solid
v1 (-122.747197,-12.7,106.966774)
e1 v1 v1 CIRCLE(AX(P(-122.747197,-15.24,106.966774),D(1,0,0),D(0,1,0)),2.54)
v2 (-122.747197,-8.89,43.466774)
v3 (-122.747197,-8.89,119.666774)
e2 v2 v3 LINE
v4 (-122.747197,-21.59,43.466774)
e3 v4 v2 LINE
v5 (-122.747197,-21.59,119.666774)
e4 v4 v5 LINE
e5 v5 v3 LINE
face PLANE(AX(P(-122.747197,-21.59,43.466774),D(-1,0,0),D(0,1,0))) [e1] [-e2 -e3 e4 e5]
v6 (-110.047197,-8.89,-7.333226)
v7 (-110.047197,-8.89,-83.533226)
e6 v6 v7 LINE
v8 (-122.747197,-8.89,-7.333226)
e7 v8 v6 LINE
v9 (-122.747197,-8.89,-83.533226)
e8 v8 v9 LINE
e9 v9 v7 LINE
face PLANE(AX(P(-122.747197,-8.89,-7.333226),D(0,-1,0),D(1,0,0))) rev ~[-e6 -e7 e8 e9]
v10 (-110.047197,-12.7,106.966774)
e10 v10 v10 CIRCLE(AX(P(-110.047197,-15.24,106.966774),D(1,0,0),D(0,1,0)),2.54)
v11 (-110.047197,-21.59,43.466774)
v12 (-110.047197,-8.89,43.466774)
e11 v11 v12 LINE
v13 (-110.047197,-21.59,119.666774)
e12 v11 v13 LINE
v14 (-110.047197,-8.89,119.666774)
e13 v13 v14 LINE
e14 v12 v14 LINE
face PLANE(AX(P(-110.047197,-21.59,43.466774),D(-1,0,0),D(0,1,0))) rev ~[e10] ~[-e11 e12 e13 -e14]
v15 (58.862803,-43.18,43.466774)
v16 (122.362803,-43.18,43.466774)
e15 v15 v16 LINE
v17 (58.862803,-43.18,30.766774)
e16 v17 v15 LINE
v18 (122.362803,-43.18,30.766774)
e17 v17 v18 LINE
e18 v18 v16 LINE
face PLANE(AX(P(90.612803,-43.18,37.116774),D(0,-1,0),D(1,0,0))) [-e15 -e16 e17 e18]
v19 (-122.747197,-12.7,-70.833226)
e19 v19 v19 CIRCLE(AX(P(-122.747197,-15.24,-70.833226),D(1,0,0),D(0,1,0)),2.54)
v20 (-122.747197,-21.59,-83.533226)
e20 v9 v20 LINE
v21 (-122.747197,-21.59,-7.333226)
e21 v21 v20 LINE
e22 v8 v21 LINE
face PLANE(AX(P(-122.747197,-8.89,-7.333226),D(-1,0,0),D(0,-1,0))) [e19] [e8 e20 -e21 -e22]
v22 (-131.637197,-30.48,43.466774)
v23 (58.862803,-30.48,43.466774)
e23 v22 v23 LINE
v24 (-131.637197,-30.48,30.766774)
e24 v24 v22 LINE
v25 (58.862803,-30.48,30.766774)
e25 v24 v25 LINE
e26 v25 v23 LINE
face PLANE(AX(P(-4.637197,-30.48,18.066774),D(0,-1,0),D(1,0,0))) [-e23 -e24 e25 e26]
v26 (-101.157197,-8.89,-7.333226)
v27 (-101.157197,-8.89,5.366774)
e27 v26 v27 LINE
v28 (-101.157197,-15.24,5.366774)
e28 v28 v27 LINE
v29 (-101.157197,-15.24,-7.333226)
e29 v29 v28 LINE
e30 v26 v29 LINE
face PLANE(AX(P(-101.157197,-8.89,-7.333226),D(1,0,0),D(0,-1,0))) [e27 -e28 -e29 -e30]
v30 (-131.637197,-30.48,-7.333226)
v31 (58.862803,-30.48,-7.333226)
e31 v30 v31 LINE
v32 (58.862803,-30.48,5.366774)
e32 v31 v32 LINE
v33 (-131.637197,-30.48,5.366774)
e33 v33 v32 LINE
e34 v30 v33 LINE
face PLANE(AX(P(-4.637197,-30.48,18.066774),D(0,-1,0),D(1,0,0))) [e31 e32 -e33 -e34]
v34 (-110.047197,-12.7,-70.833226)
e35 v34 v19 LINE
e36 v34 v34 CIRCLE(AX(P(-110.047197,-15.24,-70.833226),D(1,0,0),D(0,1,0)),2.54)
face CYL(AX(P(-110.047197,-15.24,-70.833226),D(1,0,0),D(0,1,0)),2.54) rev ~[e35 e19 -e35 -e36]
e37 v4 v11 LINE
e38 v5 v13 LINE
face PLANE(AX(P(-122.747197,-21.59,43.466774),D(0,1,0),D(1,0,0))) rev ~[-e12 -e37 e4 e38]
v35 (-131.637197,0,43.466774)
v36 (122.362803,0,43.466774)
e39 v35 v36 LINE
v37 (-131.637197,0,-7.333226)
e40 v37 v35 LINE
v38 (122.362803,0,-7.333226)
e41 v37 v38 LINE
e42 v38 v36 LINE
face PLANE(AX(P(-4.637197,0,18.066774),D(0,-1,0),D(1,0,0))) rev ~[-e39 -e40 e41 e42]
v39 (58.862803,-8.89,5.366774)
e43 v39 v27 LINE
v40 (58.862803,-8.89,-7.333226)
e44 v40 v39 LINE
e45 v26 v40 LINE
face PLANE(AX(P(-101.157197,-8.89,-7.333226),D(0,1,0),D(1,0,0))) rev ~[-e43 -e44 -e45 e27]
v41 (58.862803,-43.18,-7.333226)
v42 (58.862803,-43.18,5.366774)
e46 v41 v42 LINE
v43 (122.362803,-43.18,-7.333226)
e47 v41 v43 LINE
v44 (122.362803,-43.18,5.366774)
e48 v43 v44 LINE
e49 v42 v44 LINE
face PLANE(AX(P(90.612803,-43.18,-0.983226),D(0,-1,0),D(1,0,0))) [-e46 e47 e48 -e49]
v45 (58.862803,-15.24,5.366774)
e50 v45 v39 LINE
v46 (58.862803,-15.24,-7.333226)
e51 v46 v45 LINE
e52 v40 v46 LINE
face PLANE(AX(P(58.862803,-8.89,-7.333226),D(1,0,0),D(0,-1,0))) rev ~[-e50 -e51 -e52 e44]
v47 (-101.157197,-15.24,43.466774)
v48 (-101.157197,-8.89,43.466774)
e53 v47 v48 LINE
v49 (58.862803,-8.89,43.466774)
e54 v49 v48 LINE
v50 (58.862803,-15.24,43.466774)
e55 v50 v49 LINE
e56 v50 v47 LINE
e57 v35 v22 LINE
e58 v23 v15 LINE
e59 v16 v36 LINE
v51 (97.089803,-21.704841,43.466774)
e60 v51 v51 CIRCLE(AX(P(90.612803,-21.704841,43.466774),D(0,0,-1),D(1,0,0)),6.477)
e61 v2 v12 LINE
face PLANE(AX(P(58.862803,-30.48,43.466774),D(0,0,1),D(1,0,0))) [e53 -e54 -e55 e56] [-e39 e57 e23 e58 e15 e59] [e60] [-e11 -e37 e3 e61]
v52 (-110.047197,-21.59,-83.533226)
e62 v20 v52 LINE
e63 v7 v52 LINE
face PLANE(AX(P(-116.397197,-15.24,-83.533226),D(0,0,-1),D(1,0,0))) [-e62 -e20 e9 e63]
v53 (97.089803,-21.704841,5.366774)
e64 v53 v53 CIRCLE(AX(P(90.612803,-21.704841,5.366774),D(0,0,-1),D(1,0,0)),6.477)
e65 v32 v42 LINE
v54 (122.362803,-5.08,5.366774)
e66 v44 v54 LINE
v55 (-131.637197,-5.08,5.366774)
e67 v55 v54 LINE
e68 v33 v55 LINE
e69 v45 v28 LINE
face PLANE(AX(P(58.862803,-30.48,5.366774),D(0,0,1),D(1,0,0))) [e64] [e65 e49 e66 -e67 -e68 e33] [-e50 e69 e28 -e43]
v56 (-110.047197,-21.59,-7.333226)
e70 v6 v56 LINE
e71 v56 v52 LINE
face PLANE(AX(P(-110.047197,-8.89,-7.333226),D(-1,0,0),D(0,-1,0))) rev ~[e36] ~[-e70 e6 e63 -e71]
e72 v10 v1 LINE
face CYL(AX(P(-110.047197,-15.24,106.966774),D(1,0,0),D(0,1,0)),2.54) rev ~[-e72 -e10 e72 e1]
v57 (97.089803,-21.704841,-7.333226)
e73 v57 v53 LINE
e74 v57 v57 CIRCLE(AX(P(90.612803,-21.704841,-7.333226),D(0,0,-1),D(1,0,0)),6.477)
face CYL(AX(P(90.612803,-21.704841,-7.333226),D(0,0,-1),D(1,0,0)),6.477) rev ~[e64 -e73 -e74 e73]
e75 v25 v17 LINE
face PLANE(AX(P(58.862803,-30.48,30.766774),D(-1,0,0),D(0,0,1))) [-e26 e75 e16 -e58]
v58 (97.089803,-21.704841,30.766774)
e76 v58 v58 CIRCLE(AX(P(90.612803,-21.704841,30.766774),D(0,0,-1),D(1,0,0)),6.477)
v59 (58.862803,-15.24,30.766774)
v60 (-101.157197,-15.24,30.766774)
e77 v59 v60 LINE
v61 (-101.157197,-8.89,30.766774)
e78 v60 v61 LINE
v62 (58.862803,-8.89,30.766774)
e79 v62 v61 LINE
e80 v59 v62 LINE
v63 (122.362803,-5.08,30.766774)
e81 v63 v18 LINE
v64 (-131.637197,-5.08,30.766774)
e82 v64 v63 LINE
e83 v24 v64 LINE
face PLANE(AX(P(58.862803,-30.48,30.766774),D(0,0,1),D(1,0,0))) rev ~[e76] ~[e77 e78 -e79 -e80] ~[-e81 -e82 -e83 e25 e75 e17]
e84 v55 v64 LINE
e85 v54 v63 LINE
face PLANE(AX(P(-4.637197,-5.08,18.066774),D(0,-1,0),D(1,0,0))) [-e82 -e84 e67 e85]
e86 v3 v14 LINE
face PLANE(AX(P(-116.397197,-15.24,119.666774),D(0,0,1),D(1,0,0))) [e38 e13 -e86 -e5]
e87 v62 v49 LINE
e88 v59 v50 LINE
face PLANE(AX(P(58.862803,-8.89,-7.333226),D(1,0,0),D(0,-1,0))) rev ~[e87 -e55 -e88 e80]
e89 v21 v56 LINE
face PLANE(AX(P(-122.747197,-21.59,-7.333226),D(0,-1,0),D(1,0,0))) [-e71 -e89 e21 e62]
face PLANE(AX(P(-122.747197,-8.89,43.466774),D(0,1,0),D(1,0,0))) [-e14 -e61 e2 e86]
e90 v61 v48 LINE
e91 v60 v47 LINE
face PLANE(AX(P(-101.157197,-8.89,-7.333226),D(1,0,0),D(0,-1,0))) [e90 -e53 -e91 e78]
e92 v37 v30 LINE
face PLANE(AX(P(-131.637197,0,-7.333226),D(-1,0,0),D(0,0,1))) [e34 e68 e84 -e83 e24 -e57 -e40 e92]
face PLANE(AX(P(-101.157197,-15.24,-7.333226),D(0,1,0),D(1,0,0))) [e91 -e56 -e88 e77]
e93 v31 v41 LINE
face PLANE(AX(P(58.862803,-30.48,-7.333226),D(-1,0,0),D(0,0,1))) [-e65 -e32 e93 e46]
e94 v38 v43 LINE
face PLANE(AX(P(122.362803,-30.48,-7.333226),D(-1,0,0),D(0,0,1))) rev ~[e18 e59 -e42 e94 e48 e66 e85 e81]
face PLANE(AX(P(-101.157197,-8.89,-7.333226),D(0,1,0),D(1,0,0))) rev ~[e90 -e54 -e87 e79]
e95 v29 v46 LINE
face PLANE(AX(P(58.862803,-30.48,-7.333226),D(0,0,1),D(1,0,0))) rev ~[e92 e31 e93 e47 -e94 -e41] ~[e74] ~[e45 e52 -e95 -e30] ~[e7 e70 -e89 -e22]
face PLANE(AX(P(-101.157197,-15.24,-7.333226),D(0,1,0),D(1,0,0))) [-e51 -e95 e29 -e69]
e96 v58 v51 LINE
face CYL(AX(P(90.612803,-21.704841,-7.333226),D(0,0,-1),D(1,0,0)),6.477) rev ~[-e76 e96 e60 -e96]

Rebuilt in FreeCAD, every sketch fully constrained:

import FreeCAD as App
import Part
import Sketcher
from FreeCAD import Vector
Q = App.Units.Quantity


def add_polygon(sketch, points):
    """Adds a closed chain of lines whose ends are joined by coincident constraints."""
    first, n = sketch.GeometryCount, len(points)
    for a, b in zip(points, points[1:] + points[:1]):
        sketch.addGeometry(Part.LineSegment(App.Vector(*a, 0), App.Vector(*b, 0)), False)
    for i in range(n):
        sketch.addConstraint(Sketcher.Constraint("Coincident", first + i, 2, first + (i + 1) % n, 1))

doc = App.newDocument("Part")
body = doc.addObject("PartDesign::Body", "Body")

sketch1 = body.newObject("Sketcher::SketchObject", "Sketch")
sketch1.AttachmentSupport = (doc.getObject("XZ_Plane"), [""])
sketch1.MapMode = "FlatFace"
add_polygon(sketch1, [(-131.637197, 43.466774), (-131.637197, -7.333226), (122.362803, -7.333226), (122.362803, 43.466774)])
sketch1.addConstraint([
    Sketcher.Constraint("Vertical", 0),
    Sketcher.Constraint("Horizontal", 1),
    Sketcher.Constraint("Vertical", 2),
    Sketcher.Constraint("Horizontal", 3),
    Sketcher.Constraint("DistanceX", 1, 1, 1, 2, Q("10 in")),
    Sketcher.Constraint("DistanceY", 0, 2, 0, 1, Q("2 in")),
    Sketcher.Constraint("DistanceX", 0, 2, -1, 1, Q("131.637197 mm")),
    Sketcher.Constraint("DistanceY", 0, 2, -1, 1, Q("7.333226 mm")),
])
pad1 = body.newObject("PartDesign::Pad", "Pad")
pad1.Profile = sketch1
pad1.Length = Q("1.2 in")

sketch2 = body.newObject("Sketcher::SketchObject", "Sketch001")
sketch2.AttachmentSupport = (doc.getObject("XZ_Plane"), [""])
sketch2.MapMode = "FlatFace"
sketch2.AttachmentOffset = App.Placement(Vector(0, 0, 1.2 * 25.4), App.Rotation())
add_polygon(sketch2, [(-131.637197, 30.766774), (-131.637197, 5.366774), (122.362803, 5.366774), (122.362803, 30.766774)])
sketch2.addConstraint([
    Sketcher.Constraint("Vertical", 0),
    Sketcher.Constraint("Horizontal", 1),
    Sketcher.Constraint("Vertical", 2),
    Sketcher.Constraint("Horizontal", 3),
    Sketcher.Constraint("DistanceX", 1, 1, 1, 2, Q("10 in")),
    Sketcher.Constraint("DistanceY", 0, 2, 0, 1, Q("1 in")),
    Sketcher.Constraint("DistanceX", 0, 2, -1, 1, Q("131.637197 mm")),
    Sketcher.Constraint("DistanceY", -1, 1, 0, 2, Q("5.366774 mm")),
])
pocket1 = body.newObject("PartDesign::Pocket", "Pocket")
pocket1.Profile = sketch2
pocket1.Length = Q("1 in")

sketch3 = body.newObject("Sketcher::SketchObject", "Sketch002")
sketch3.AttachmentSupport = (doc.getObject("XY_Plane"), [""])
sketch3.MapMode = "FlatFace"
sketch3.AttachmentOffset = App.Placement(Vector(0, 0, -7.333226), App.Rotation())
add_polygon(sketch3, [(-122.747197, -21.59), (-122.747197, -8.89), (-110.047197, -8.89), (-110.047197, -21.59)])
sketch3.addConstraint([
    Sketcher.Constraint("Vertical", 0),
    Sketcher.Constraint("Horizontal", 1),
    Sketcher.Constraint("Vertical", 2),
    Sketcher.Constraint("Horizontal", 3),
    Sketcher.Constraint("Equal", 3, 0),
    Sketcher.Constraint("DistanceX", 1, 1, 1, 2, Q("0.5 in")),
    Sketcher.Constraint("DistanceY", 0, 2, -1, 1, Q("0.35 in")),
    Sketcher.Constraint("DistanceX", 0, 2, -1, 1, Q("122.747197 mm")),
])
pad2 = body.newObject("PartDesign::Pad", "Pad001")
pad2.Profile = sketch3
pad2.Length = Q("3 in")
pad2.Reversed = True

sketch4 = body.newObject("Sketcher::SketchObject", "Sketch003")
sketch4.AttachmentSupport = (doc.getObject("XY_Plane"), [""])
sketch4.MapMode = "FlatFace"
sketch4.AttachmentOffset = App.Placement(Vector(0, 0, 43.466774), App.Rotation())
add_polygon(sketch4, [(-122.747197, -8.89), (-122.747197, -21.59), (-110.047197, -21.59), (-110.047197, -8.89)])
sketch4.addConstraint([
    Sketcher.Constraint("Vertical", 0),
    Sketcher.Constraint("Horizontal", 1),
    Sketcher.Constraint("Vertical", 2),
    Sketcher.Constraint("Horizontal", 3),
    Sketcher.Constraint("Equal", 3, 0),
    Sketcher.Constraint("DistanceX", 1, 1, 1, 2, Q("0.5 in")),
    Sketcher.Constraint("DistanceY", 0, 2, -1, 1, Q("0.85 in")),
    Sketcher.Constraint("DistanceX", 0, 2, -1, 1, Q("122.747197 mm")),
])
pad3 = body.newObject("PartDesign::Pad", "Pad002")
pad3.Profile = sketch4
pad3.Length = Q("3 in")

sketch5 = body.newObject("Sketcher::SketchObject", "Sketch004")
sketch5.AttachmentSupport = (doc.getObject("XZ_Plane"), [""])
sketch5.MapMode = "FlatFace"
sketch5.AttachmentOffset = App.Placement(Vector(0, 0, 1.2 * 25.4), App.Rotation())
add_polygon(sketch5, [(58.862803, 43.466774), (58.862803, 30.766774), (122.362803, 30.766774), (122.362803, 43.466774)])
sketch5.addConstraint([
    Sketcher.Constraint("Vertical", 0),
    Sketcher.Constraint("Horizontal", 1),
    Sketcher.Constraint("Vertical", 2),
    Sketcher.Constraint("Horizontal", 3),
    Sketcher.Constraint("DistanceX", 1, 1, 1, 2, Q("2.5 in")),
    Sketcher.Constraint("DistanceY", 0, 2, 0, 1, Q("0.5 in")),
    Sketcher.Constraint("DistanceX", -1, 1, 0, 2, Q("58.862803 mm")),
    Sketcher.Constraint("DistanceY", -1, 1, 0, 2, Q("30.766774 mm")),
])
pad4 = body.newObject("PartDesign::Pad", "Pad003")
pad4.Profile = sketch5
pad4.Length = Q("0.5 in")

sketch6 = body.newObject("Sketcher::SketchObject", "Sketch005")
sketch6.AttachmentSupport = (doc.getObject("XZ_Plane"), [""])
sketch6.MapMode = "FlatFace"
sketch6.AttachmentOffset = App.Placement(Vector(0, 0, 1.2 * 25.4), App.Rotation())
add_polygon(sketch6, [(58.862803, 5.366774), (58.862803, -7.333226), (122.362803, -7.333226), (122.362803, 5.366774)])
sketch6.addConstraint([
    Sketcher.Constraint("Vertical", 0),
    Sketcher.Constraint("Horizontal", 1),
    Sketcher.Constraint("Vertical", 2),
    Sketcher.Constraint("Horizontal", 3),
    Sketcher.Constraint("DistanceX", 1, 1, 1, 2, Q("2.5 in")),
    Sketcher.Constraint("DistanceY", 0, 2, 0, 1, Q("0.5 in")),
    Sketcher.Constraint("DistanceX", -1, 1, 0, 2, Q("58.862803 mm")),
    Sketcher.Constraint("DistanceY", 0, 2, -1, 1, Q("7.333226 mm")),
])
pad5 = body.newObject("PartDesign::Pad", "Pad004")
pad5.Profile = sketch6
pad5.Length = Q("0.5 in")

sketch7 = body.newObject("Sketcher::SketchObject", "Sketch006")
sketch7.AttachmentSupport = (doc.getObject("XY_Plane"), [""])
sketch7.MapMode = "FlatFace"
sketch7.AttachmentOffset = App.Placement(Vector(0, 0, -7.333226), App.Rotation())
add_polygon(sketch7, [(-101.157197, -15.24), (-101.157197, -8.89), (58.862803, -8.89), (58.862803, -15.24)])
sketch7.addConstraint([
    Sketcher.Constraint("Vertical", 0),
    Sketcher.Constraint("Horizontal", 1),
    Sketcher.Constraint("Vertical", 2),
    Sketcher.Constraint("Horizontal", 3),
    Sketcher.Constraint("DistanceX", 1, 1, 1, 2, Q("6.3 in")),
    Sketcher.Constraint("DistanceY", 0, 1, 0, 2, Q("0.25 in")),
    Sketcher.Constraint("DistanceY", 2, 2, -1, 1, Q("0.6 in")),
    Sketcher.Constraint("DistanceX", 0, 2, -1, 1, Q("101.157197 mm")),
])
pocket2 = body.newObject("PartDesign::Pocket", "Pocket001")
pocket2.Profile = sketch7
pocket2.Type = "ThroughAll"
pocket2.Reversed = True

sketch8 = body.newObject("Sketcher::SketchObject", "Sketch007")
sketch8.AttachmentSupport = (doc.getObject("XY_Plane"), [""])
sketch8.MapMode = "FlatFace"
sketch8.AttachmentOffset = App.Placement(Vector(0, 0, -7.333226), App.Rotation())
sketch8.addGeometry(Part.Circle(Vector(90.612803, -21.704841, 0), Vector(0, 0, 1), 6.477), False)
sketch8.addConstraint([
    Sketcher.Constraint("Diameter", 0, Q("0.51 in")),
    Sketcher.Constraint("DistanceY", 0, 3, -1, 1, Q("21.704841 mm")),
    Sketcher.Constraint("DistanceX", -1, 1, 0, 3, Q("90.612803 mm")),
])
pocket3 = body.newObject("PartDesign::Pocket", "Pocket002")
pocket3.Profile = sketch8
pocket3.Type = "ThroughAll"
pocket3.Reversed = True

sketch9 = body.newObject("Sketcher::SketchObject", "Sketch008")
sketch9.AttachmentSupport = (doc.getObject("YZ_Plane"), [""])
sketch9.MapMode = "FlatFace"
sketch9.AttachmentOffset = App.Placement(Vector(0, 0, -110.047197), App.Rotation())
sketch9.addGeometry(Part.Circle(Vector(-15.24, -70.833226, 0), Vector(0, 0, 1), 2.54), False)
sketch9.addConstraint([
    Sketcher.Constraint("Diameter", 0, Q("0.2 in")),
    Sketcher.Constraint("DistanceX", 0, 3, -1, 1, Q("0.6 in")),
    Sketcher.Constraint("DistanceY", 0, 3, -1, 1, Q("70.833226 mm")),
])
pocket4 = body.newObject("PartDesign::Pocket", "Pocket003")
pocket4.Profile = sketch9
pocket4.Length = Q("1 in")

sketch10 = body.newObject("Sketcher::SketchObject", "Sketch009")
sketch10.AttachmentSupport = (doc.getObject("YZ_Plane"), [""])
sketch10.MapMode = "FlatFace"
sketch10.AttachmentOffset = App.Placement(Vector(0, 0, -110.047197), App.Rotation())
sketch10.addGeometry(Part.Circle(Vector(-15.24, 106.966774, 0), Vector(0, 0, 1), 2.54), False)
sketch10.addConstraint([
    Sketcher.Constraint("Diameter", 0, Q("0.2 in")),
    Sketcher.Constraint("DistanceX", 0, 3, -1, 1, Q("0.6 in")),
    Sketcher.Constraint("DistanceY", -1, 1, 0, 3, Q("106.966774 mm")),
])
pocket5 = body.newObject("PartDesign::Pocket", "Pocket004")
pocket5.Profile = sketch10
pocket5.Length = Q("1 in")

doc.recompute()
